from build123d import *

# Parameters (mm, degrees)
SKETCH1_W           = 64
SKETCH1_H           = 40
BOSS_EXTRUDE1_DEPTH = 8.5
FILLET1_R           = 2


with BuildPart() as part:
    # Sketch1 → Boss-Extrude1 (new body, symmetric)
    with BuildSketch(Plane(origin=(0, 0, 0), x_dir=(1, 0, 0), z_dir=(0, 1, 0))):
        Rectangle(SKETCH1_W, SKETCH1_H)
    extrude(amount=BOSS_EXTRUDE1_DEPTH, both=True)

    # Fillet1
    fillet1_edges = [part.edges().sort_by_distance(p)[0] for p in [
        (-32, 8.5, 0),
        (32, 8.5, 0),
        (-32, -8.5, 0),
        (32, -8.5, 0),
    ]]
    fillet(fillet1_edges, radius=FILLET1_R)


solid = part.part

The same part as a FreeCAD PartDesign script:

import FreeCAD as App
import Part
import Sketcher
from FreeCAD import Vector
Q = App.Units.Quantity


def edges_at(feature, points):
    """Names of the edges that pass closest to the given points."""
    edges = feature.Shape.Edges
    near = lambda p: min(range(len(edges)), key=lambda i: edges[i].distToShape(Part.Vertex(*p))[0])
    return sorted({f"Edge{near(p) + 1}" for p in points})

doc = App.newDocument("Part")
body = doc.addObject("PartDesign::Body", "Body")

sketch1 = body.newObject("Sketcher::SketchObject", "Sketch")
sketch1.AttachmentSupport = (doc.getObject("XZ_Plane"), [""])
sketch1.MapMode = "FlatFace"
sketch1.addGeometry(Part.LineSegment(Vector(-32, -20, 0), Vector(-32, 20, 0)), False)
sketch1.addGeometry(Part.LineSegment(Vector(-32, 20, 0), Vector(32, 20, 0)), False)
sketch1.addGeometry(Part.LineSegment(Vector(32, 20, 0), Vector(32, -20, 0)), False)
sketch1.addGeometry(Part.LineSegment(Vector(32, -20, 0), Vector(-32, -20, 0)), False)
sketch1.addConstraint(Sketcher.Constraint("Coincident", 0, 2, 1, 1))
sketch1.addConstraint(Sketcher.Constraint("Coincident", 1, 2, 2, 1))
sketch1.addConstraint(Sketcher.Constraint("Coincident", 2, 2, 3, 1))
sketch1.addConstraint(Sketcher.Constraint("Coincident", 3, 2, 0, 1))
sketch1.addConstraint(Sketcher.Constraint("Vertical", 0))
sketch1.addConstraint(Sketcher.Constraint("Horizontal", 1))
sketch1.addConstraint(Sketcher.Constraint("Vertical", 2))
sketch1.addConstraint(Sketcher.Constraint("Horizontal", 3))
sketch1.addConstraint(Sketcher.Constraint("Symmetric", 0, 2, 2, 2, -1, 1))
sketch1.addConstraint(Sketcher.Constraint("DistanceX", 1, 1, 1, 2, Q("64 mm")))
sketch1.addConstraint(Sketcher.Constraint("DistanceY", 0, 1, 0, 2, Q("40 mm")))
pad1 = body.newObject("PartDesign::Pad", "Pad")
pad1.Profile = sketch1
pad1.Length = 17
pad1.Midplane = True
doc.recompute()

fillet = body.newObject("PartDesign::Fillet", "Fillet")
fillet.Base = (pad1, edges_at(pad1, [
    (-32, 8.5, 0),
    (32, 8.5, 0),
    (-32, -8.5, 0),
    (32, -8.5, 0),
]))
fillet.Radius = 2

doc.recompute()
